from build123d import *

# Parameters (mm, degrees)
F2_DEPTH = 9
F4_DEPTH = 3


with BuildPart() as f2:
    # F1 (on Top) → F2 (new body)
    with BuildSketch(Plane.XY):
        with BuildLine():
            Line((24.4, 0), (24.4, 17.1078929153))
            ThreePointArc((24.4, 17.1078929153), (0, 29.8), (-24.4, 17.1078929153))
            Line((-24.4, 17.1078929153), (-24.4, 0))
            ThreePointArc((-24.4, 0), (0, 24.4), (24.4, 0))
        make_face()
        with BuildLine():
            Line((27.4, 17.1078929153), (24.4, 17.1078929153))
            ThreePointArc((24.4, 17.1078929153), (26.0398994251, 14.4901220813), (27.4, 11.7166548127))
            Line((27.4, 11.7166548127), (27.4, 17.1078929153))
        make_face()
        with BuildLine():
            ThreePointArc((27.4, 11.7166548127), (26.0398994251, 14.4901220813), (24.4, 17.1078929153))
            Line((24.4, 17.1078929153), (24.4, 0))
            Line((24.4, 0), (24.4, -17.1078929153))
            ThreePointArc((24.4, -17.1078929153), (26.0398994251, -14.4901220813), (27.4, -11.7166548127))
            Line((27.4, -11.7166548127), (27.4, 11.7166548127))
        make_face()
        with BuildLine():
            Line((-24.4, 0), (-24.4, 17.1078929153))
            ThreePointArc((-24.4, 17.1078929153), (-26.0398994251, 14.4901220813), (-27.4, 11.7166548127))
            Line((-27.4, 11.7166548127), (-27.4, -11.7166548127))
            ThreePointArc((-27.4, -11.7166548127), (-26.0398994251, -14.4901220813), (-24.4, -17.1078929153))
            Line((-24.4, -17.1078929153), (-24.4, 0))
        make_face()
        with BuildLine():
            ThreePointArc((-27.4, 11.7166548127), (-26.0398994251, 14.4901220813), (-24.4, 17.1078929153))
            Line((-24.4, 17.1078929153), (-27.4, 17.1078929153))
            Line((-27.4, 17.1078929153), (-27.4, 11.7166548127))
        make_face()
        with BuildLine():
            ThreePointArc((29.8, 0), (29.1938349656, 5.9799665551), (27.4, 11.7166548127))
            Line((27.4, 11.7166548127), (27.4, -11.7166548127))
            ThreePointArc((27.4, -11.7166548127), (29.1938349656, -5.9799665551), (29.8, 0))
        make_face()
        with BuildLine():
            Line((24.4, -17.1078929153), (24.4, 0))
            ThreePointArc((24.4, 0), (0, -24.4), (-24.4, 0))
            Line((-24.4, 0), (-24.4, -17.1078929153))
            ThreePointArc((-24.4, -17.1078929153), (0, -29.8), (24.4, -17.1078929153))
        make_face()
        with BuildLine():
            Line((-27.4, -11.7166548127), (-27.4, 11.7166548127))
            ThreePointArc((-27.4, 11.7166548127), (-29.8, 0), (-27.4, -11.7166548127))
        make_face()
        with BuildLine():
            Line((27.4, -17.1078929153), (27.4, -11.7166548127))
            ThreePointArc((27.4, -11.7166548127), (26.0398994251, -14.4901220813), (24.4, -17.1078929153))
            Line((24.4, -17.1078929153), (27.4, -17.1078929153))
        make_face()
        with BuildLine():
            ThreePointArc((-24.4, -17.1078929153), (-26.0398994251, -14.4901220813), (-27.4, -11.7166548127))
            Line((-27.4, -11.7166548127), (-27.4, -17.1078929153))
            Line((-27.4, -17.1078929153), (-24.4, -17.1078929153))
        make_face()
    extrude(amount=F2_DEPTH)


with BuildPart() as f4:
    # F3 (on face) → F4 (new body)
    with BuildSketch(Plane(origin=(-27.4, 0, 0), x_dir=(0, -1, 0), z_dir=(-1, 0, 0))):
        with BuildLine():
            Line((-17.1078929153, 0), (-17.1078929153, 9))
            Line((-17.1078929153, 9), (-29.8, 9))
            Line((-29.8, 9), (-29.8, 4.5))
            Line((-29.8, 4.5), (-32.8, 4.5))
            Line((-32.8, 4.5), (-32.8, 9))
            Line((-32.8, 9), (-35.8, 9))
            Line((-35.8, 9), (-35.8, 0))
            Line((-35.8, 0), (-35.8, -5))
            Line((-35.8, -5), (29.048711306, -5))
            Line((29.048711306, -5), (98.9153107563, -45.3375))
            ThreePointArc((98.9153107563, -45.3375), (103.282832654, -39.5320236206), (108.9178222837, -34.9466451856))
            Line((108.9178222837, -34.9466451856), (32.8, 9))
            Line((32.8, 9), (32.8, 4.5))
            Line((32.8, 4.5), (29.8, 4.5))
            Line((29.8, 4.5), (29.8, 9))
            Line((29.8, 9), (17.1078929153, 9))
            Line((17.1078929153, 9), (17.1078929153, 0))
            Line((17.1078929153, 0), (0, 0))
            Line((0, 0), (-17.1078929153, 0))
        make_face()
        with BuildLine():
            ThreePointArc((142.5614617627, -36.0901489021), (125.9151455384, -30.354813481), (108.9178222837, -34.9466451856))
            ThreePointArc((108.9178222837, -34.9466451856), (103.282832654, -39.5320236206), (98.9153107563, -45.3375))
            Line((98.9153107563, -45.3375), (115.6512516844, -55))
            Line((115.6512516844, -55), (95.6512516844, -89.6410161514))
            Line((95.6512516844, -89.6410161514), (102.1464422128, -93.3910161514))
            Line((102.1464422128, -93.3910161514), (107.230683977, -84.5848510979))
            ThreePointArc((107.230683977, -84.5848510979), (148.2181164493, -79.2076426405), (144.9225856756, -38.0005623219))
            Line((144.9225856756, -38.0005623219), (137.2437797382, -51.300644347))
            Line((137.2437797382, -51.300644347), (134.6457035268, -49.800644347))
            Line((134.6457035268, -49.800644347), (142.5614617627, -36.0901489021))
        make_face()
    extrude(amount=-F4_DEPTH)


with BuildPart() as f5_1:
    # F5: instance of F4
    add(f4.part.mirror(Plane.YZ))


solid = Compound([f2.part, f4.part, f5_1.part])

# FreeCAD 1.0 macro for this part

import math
import FreeCAD as App
import Part
import Sketcher

V = App.Vector
Q = App.Units.Quantity

doc = App.newDocument("Part")
body = doc.addObject("PartDesign::Body", "Body")

sketch1 = doc.addObject("Sketcher::SketchObject", "Sketch")
body.addObject(sketch1)
sketch1.AttachmentSupport = (doc.XY_Plane, [""])
sketch1.MapMode = "FlatFace"
sketch1.addGeometry(Part.ArcOfCircle(Part.Circle(V(0, 0, 0), V(0, 0, 1), 29.8), math.radians(35), math.radians(145)), False)
sketch1.addGeometry(Part.LineSegment(V(-24.4, 17.1, 0), V(-27.4, 17.1, 0)), False)
sketch1.addGeometry(Part.LineSegment(V(-27.4, 17.1, 0), V(-27.4, 11.7, 0)), False)
sketch1.addGeometry(Part.ArcOfCircle(Part.Circle(V(0, 0, 0), V(0, 0, 1), 29.8), math.radians(157), math.radians(203)), False)
sketch1.addGeometry(Part.LineSegment(V(-27.4, -11.7, 0), V(-27.4, -17.1, 0)), False)
sketch1.addGeometry(Part.LineSegment(V(-27.4, -17.1, 0), V(-24.4, -17.1, 0)), False)
sketch1.addGeometry(Part.ArcOfCircle(Part.Circle(V(0, 0, 0), V(0, 0, 1), 29.8), math.radians(-145), math.radians(-35)), False)
sketch1.addGeometry(Part.LineSegment(V(24.4, -17.1, 0), V(27.4, -17.1, 0)), False)
sketch1.addGeometry(Part.LineSegment(V(27.4, -17.1, 0), V(27.4, -11.7, 0)), False)
sketch1.addGeometry(Part.ArcOfCircle(Part.Circle(V(0, 0, 0), V(0, 0, 1), 29.8), math.radians(-23), math.radians(0)), False)
sketch1.addGeometry(Part.ArcOfCircle(Part.Circle(V(0, 0, 0), V(0, 0, 1), 29.8), math.radians(0), math.radians(23)), False)
sketch1.addGeometry(Part.LineSegment(V(27.4, 11.7, 0), V(27.4, 17.1, 0)), False)
sketch1.addGeometry(Part.LineSegment(V(27.4, 17.1, 0), V(24.4, 17.1, 0)), False)
sketch1.addGeometry(Part.Circle(V(0, 0, 0), V(0, 0, 1), 24.4), False)
sketch1.addConstraint(Sketcher.Constraint("Coincident", 0, 2, 1, 1))
sketch1.addConstraint(Sketcher.Constraint("Coincident", 1, 2, 2, 1))
sketch1.addConstraint(Sketcher.Constraint("Coincident", 2, 2, 3, 1))
sketch1.addConstraint(Sketcher.Constraint("Coincident", 3, 2, 4, 1))
sketch1.addConstraint(Sketcher.Constraint("Coincident", 4, 2, 5, 1))
sketch1.addConstraint(Sketcher.Constraint("Coincident", 5, 2, 6, 1))
sketch1.addConstraint(Sketcher.Constraint("Coincident", 6, 2, 7, 1))
sketch1.addConstraint(Sketcher.Constraint("Coincident", 7, 2, 8, 1))
sketch1.addConstraint(Sketcher.Constraint("Coincident", 8, 2, 9, 1))
sketch1.addConstraint(Sketcher.Constraint("Tangent", 9, 2, 10, 1))
sketch1.addConstraint(Sketcher.Constraint("Coincident", 10, 2, 11, 1))
sketch1.addConstraint(Sketcher.Constraint("Coincident", 11, 2, 12, 1))
sketch1.addConstraint(Sketcher.Constraint("Coincident", 12, 2, 0, 1))
sketch1.addConstraint(Sketcher.Constraint("Horizontal", 1))
sketch1.addConstraint(Sketcher.Constraint("Vertical", 2))
sketch1.addConstraint(Sketcher.Constraint("Vertical", 4))
sketch1.addConstraint(Sketcher.Constraint("Horizontal", 5))
sketch1.addConstraint(Sketcher.Constraint("Horizontal", 7))
sketch1.addConstraint(Sketcher.Constraint("Vertical", 8))
sketch1.addConstraint(Sketcher.Constraint("Vertical", 11))
sketch1.addConstraint(Sketcher.Constraint("Horizontal", 12))
sketch1.addConstraint(Sketcher.Constraint("Coincident", 0, 3, -1, 1))
sketch1.addConstraint(Sketcher.Constraint("Coincident", 3, 3, -1, 1))
sketch1.addConstraint(Sketcher.Constraint("Coincident", 6, 3, -1, 1))
sketch1.addConstraint(Sketcher.Constraint("Coincident", 9, 3, -1, 1))
sketch1.addConstraint(Sketcher.Constraint("Coincident", 13, 3, -1, 1))
sketch1.addConstraint(Sketcher.Constraint("Equal", 0, 3))
sketch1.addConstraint(Sketcher.Constraint("Equal", 3, 6))
sketch1.addConstraint(Sketcher.Constraint("Equal", 6, 9))
sketch1.addConstraint(Sketcher.Constraint("Equal", 9, 10))
sketch1.addConstraint(Sketcher.Constraint("Symmetric", 1, 2, 7, 2, -1, 1))
sketch1.addConstraint(Sketcher.Constraint("Symmetric", 4, 2, 11, 2, -1, 1))
sketch1.addConstraint(Sketcher.Constraint("Symmetric", 4, 2, 7, 2, -2))
sketch1.addConstraint(Sketcher.Constraint("PointOnObject", 9, 2, -1))
sketch1.addConstraint(Sketcher.Constraint("Diameter", 13, 48.8))
sketch1.addConstraint(Sketcher.Constraint("Radius", 0, 29.8))
sketch1.addConstraint(Sketcher.Constraint("DistanceX", 1, 2, 1, 1, 3.0))
sketch1.addConstraint(Sketcher.Constraint("DistanceX", 0, 2, -1, 1, 24.4))
pad1 = doc.addObject("PartDesign::Pad", "Pad")
body.addObject(pad1)
pad1.Profile = sketch1
pad1.Length = 9
body2 = doc.addObject("PartDesign::Body", "Body001")

sketch2 = doc.addObject("Sketcher::SketchObject", "Sketch001")
body2.addObject(sketch2)
sketch2.AttachmentSupport = (doc.getObject("YZ_Plane001"), [""])
sketch2.MapMode = "FlatFace"
sketch2.AttachmentOffset = App.Placement(V(0, 0, -27.4), App.Rotation())
sketch2.addGeometry(Part.LineSegment(V(17.1, 0, 0), V(17.1, 9, 0)), False)
sketch2.addGeometry(Part.LineSegment(V(17.1, 9, 0), V(29.8, 9, 0)), False)
sketch2.addGeometry(Part.LineSegment(V(29.8, 9, 0), V(29.8, 4.5, 0)), False)
sketch2.addGeometry(Part.LineSegment(V(29.8, 4.5, 0), V(32.8, 4.5, 0)), False)
sketch2.addGeometry(Part.LineSegment(V(32.8, 4.5, 0), V(32.8, 9, 0)), False)
sketch2.addGeometry(Part.LineSegment(V(32.8, 9, 0), V(35.8, 9, 0)), False)
sketch2.addGeometry(Part.LineSegment(V(35.8, 9, 0), V(35.8, -5, 0)), False)
sketch2.addGeometry(Part.LineSegment(V(35.8, -5, 0), V(-29, -5, 0)), False)
sketch2.addGeometry(Part.LineSegment(V(-29, -5, 0), V(-115.7, -55, 0)), False)
sketch2.addGeometry(Part.LineSegment(V(-115.7, -55, 0), V(-95.7, -89.6, 0)), False)
sketch2.addGeometry(Part.LineSegment(V(-95.7, -89.6, 0), V(-102.1, -93.4, 0)), False)
sketch2.addGeometry(Part.LineSegment(V(-102.1, -93.4, 0), V(-107.2, -84.6, 0)), False)
sketch2.addGeometry(Part.ArcOfCircle(Part.Circle(V(-124.9, -60.3, 0), V(0, 0, 1), 30), math.radians(132), math.radians(306)), False)
sketch2.addGeometry(Part.LineSegment(V(-144.9, -38, 0), V(-137.2, -51.3, 0)), False)
sketch2.addGeometry(Part.LineSegment(V(-137.2, -51.3, 0), V(-134.6, -49.8, 0)), False)
sketch2.addGeometry(Part.LineSegment(V(-134.6, -49.8, 0), V(-142.6, -36.1, 0)), False)
sketch2.addGeometry(Part.ArcOfCircle(Part.Circle(V(-124.9, -60.3, 0), V(0, 0, 1), 30), math.radians(58), math.radians(126)), False)
sketch2.addGeometry(Part.LineSegment(V(-108.9, -34.9, 0), V(-32.8, 9, 0)), False)
sketch2.addGeometry(Part.LineSegment(V(-32.8, 9, 0), V(-32.8, 4.5, 0)), False)
sketch2.addGeometry(Part.LineSegment(V(-32.8, 4.5, 0), V(-29.8, 4.5, 0)), False)
sketch2.addGeometry(Part.LineSegment(V(-29.8, 4.5, 0), V(-29.8, 9, 0)), False)
sketch2.addGeometry(Part.LineSegment(V(-29.8, 9, 0), V(-17.1, 9, 0)), False)
sketch2.addGeometry(Part.LineSegment(V(-17.1, 9, 0), V(-17.1, 0, 0)), False)
sketch2.addGeometry(Part.LineSegment(V(-17.1, 0, 0), V(17.1, 0, 0)), False)
sketch2.addConstraint(Sketcher.Constraint("Coincident", 0, 2, 1, 1))
sketch2.addConstraint(Sketcher.Constraint("Coincident", 1, 2, 2, 1))
sketch2.addConstraint(Sketcher.Constraint("Coincident", 2, 2, 3, 1))
sketch2.addConstraint(Sketcher.Constraint("Coincident", 3, 2, 4, 1))
sketch2.addConstraint(Sketcher.Constraint("Coincident", 4, 2, 5, 1))
sketch2.addConstraint(Sketcher.Constraint("Coincident", 5, 2, 6, 1))
sketch2.addConstraint(Sketcher.Constraint("Coincident", 6, 2, 7, 1))
sketch2.addConstraint(Sketcher.Constraint("Coincident", 7, 2, 8, 1))
sketch2.addConstraint(Sketcher.Constraint("Coincident", 8, 2, 9, 1))
sketch2.addConstraint(Sketcher.Constraint("Coincident", 9, 2, 10, 1))
sketch2.addConstraint(Sketcher.Constraint("Coincident", 10, 2, 11, 1))
sketch2.addConstraint(Sketcher.Constraint("Coincident", 11, 2, 12, 2))
sketch2.addConstraint(Sketcher.Constraint("Coincident", 12, 1, 13, 1))
sketch2.addConstraint(Sketcher.Constraint("Coincident", 13, 2, 14, 1))
sketch2.addConstraint(Sketcher.Constraint("Coincident", 14, 2, 15, 1))
sketch2.addConstraint(Sketcher.Constraint("Coincident", 15, 2, 16, 2))
sketch2.addConstraint(Sketcher.Constraint("Coincident", 16, 1, 17, 1))
sketch2.addConstraint(Sketcher.Constraint("Coincident", 17, 2, 18, 1))
sketch2.addConstraint(Sketcher.Constraint("Coincident", 18, 2, 19, 1))
sketch2.addConstraint(Sketcher.Constraint("Coincident", 19, 2, 20, 1))
sketch2.addConstraint(Sketcher.Constraint("Coincident", 20, 2, 21, 1))
sketch2.addConstraint(Sketcher.Constraint("Coincident", 21, 2, 22, 1))
sketch2.addConstraint(Sketcher.Constraint("Coincident", 22, 2, 23, 1))
sketch2.addConstraint(Sketcher.Constraint("Coincident", 23, 2, 0, 1))
sketch2.addConstraint(Sketcher.Constraint("Vertical", 0))
sketch2.addConstraint(Sketcher.Constraint("Horizontal", 1))
sketch2.addConstraint(Sketcher.Constraint("Vertical", 2))
sketch2.addConstraint(Sketcher.Constraint("Horizontal", 3))
sketch2.addConstraint(Sketcher.Constraint("Vertical", 4))
sketch2.addConstraint(Sketcher.Constraint("Horizontal", 5))
sketch2.addConstraint(Sketcher.Constraint("Vertical", 6))
sketch2.addConstraint(Sketcher.Constraint("Horizontal", 7))
sketch2.addConstraint(Sketcher.Constraint("Vertical", 18))
sketch2.addConstraint(Sketcher.Constraint("Horizontal", 19))
sketch2.addConstraint(Sketcher.Constraint("Vertical", 20))
sketch2.addConstraint(Sketcher.Constraint("Horizontal", 21))
sketch2.addConstraint(Sketcher.Constraint("Vertical", 22))
sketch2.addConstraint(Sketcher.Constraint("Horizontal", 23))
sketch2.addConstraint(Sketcher.Constraint("Coincident", 16, 3, 12, 3))
sketch2.addConstraint(Sketcher.Constraint("Equal", 12, 16))
sketch2.addConstraint(Sketcher.Constraint("Symmetric", 22, 2, 23, 2, -1, 1))
sketch2.addConstraint(Sketcher.Constraint("Symmetric", 4, 2, 17, 2, -2))
sketch2.addConstraint(Sketcher.Constraint("Symmetric", 2, 2, 19, 2, -2))
sketch2.addConstraint(Sketcher.Constraint("Perpendicular", 8, 9))
sketch2.addConstraint(Sketcher.Constraint("Perpendicular", 9, 10))
sketch2.addConstraint(Sketcher.Constraint("Perpendicular", 10, 11))
sketch2.addConstraint(Sketcher.Constraint("Parallel", 11, 13))
sketch2.addConstraint(Sketcher.Constraint("Perpendicular", 13, 14))
sketch2.addConstraint(Sketcher.Constraint("Perpendicular", 14, 15))
sketch2.addConstraint(Sketcher.Constraint("Perpendicular", 15, 17))
sketch2.addConstraint(Sketcher.Constraint("Horizontal", 1, 2, 4, 2))
sketch2.addConstraint(Sketcher.Constraint("Horizontal", 17, 2, 20, 2))
sketch2.addConstraint(Sketcher.Constraint("Equal", 3, 5))
sketch2.addConstraint(Sketcher.Constraint("Radius", 12, 30.0))
sketch2.addConstraint(Sketcher.Constraint("DistanceX", 3, 1, 3, 2, 3.0))
sketch2.addConstraint(Sketcher.Constraint("DistanceY", 0, 1, 0, 2, 9.0))
sketch2.addConstraint(Sketcher.Constraint("DistanceY", 6, 2, 6, 1, 14.0))
sketch2.addConstraint(Sketcher.Constraint("Angle", 8, Q("-150 deg")))
sketch2.addConstraint(Sketcher.Constraint("Distance", 8, 100.0))
sketch2.addConstraint(Sketcher.Constraint("Distance", 9, 40.0))
sketch2.addConstraint(Sketcher.Constraint("Distance", 14, 3.0))
sketch2.addConstraint(Sketcher.Constraint("DistanceY", 2, 2, 2, 1, 4.5))
sketch2.addConstraint(Sketcher.Constraint("Distance", 10, 7.5))
sketch2.addConstraint(Sketcher.Constraint("DistanceX", -1, 1, 1, 2, 29.8))
sketch2.addConstraint(Sketcher.Constraint("DistanceY", 14, 2, 16, 1, 14.853999))
sketch2.addConstraint(Sketcher.Constraint("DistanceX", 7, 2, 7, 1, 64.848711))
sketch2.addConstraint(Sketcher.Constraint("DistanceY", 12, 3, -1, 1, 60.3375))
sketch2.addConstraint(Sketcher.Constraint("DistanceX", 12, 1, 11, 2, 37.691902))
sketch2.addConstraint(Sketcher.Constraint("Distance", 13, 15.357612))
sketch2.addConstraint(Sketcher.Constraint("DistanceX", 1, 1, 1, 2, 12.692107))
pad2 = doc.addObject("PartDesign::Pad", "Pad001")
body2.addObject(pad2)
pad2.Profile = sketch2
pad2.Length = 3
body3 = doc.addObject("PartDesign::Body", "Body002")
doc.recompute()

mirroring = doc.addObject("Part::Mirroring", "Mirroring")
mirroring.Source = body2
mirroring.Base = V(0, 0, 0)
mirroring.Normal = V(1, 0, 0)
body3.BaseFeature = mirroring
doc.recompute()
mirroring.Visibility = False

doc.recompute()
